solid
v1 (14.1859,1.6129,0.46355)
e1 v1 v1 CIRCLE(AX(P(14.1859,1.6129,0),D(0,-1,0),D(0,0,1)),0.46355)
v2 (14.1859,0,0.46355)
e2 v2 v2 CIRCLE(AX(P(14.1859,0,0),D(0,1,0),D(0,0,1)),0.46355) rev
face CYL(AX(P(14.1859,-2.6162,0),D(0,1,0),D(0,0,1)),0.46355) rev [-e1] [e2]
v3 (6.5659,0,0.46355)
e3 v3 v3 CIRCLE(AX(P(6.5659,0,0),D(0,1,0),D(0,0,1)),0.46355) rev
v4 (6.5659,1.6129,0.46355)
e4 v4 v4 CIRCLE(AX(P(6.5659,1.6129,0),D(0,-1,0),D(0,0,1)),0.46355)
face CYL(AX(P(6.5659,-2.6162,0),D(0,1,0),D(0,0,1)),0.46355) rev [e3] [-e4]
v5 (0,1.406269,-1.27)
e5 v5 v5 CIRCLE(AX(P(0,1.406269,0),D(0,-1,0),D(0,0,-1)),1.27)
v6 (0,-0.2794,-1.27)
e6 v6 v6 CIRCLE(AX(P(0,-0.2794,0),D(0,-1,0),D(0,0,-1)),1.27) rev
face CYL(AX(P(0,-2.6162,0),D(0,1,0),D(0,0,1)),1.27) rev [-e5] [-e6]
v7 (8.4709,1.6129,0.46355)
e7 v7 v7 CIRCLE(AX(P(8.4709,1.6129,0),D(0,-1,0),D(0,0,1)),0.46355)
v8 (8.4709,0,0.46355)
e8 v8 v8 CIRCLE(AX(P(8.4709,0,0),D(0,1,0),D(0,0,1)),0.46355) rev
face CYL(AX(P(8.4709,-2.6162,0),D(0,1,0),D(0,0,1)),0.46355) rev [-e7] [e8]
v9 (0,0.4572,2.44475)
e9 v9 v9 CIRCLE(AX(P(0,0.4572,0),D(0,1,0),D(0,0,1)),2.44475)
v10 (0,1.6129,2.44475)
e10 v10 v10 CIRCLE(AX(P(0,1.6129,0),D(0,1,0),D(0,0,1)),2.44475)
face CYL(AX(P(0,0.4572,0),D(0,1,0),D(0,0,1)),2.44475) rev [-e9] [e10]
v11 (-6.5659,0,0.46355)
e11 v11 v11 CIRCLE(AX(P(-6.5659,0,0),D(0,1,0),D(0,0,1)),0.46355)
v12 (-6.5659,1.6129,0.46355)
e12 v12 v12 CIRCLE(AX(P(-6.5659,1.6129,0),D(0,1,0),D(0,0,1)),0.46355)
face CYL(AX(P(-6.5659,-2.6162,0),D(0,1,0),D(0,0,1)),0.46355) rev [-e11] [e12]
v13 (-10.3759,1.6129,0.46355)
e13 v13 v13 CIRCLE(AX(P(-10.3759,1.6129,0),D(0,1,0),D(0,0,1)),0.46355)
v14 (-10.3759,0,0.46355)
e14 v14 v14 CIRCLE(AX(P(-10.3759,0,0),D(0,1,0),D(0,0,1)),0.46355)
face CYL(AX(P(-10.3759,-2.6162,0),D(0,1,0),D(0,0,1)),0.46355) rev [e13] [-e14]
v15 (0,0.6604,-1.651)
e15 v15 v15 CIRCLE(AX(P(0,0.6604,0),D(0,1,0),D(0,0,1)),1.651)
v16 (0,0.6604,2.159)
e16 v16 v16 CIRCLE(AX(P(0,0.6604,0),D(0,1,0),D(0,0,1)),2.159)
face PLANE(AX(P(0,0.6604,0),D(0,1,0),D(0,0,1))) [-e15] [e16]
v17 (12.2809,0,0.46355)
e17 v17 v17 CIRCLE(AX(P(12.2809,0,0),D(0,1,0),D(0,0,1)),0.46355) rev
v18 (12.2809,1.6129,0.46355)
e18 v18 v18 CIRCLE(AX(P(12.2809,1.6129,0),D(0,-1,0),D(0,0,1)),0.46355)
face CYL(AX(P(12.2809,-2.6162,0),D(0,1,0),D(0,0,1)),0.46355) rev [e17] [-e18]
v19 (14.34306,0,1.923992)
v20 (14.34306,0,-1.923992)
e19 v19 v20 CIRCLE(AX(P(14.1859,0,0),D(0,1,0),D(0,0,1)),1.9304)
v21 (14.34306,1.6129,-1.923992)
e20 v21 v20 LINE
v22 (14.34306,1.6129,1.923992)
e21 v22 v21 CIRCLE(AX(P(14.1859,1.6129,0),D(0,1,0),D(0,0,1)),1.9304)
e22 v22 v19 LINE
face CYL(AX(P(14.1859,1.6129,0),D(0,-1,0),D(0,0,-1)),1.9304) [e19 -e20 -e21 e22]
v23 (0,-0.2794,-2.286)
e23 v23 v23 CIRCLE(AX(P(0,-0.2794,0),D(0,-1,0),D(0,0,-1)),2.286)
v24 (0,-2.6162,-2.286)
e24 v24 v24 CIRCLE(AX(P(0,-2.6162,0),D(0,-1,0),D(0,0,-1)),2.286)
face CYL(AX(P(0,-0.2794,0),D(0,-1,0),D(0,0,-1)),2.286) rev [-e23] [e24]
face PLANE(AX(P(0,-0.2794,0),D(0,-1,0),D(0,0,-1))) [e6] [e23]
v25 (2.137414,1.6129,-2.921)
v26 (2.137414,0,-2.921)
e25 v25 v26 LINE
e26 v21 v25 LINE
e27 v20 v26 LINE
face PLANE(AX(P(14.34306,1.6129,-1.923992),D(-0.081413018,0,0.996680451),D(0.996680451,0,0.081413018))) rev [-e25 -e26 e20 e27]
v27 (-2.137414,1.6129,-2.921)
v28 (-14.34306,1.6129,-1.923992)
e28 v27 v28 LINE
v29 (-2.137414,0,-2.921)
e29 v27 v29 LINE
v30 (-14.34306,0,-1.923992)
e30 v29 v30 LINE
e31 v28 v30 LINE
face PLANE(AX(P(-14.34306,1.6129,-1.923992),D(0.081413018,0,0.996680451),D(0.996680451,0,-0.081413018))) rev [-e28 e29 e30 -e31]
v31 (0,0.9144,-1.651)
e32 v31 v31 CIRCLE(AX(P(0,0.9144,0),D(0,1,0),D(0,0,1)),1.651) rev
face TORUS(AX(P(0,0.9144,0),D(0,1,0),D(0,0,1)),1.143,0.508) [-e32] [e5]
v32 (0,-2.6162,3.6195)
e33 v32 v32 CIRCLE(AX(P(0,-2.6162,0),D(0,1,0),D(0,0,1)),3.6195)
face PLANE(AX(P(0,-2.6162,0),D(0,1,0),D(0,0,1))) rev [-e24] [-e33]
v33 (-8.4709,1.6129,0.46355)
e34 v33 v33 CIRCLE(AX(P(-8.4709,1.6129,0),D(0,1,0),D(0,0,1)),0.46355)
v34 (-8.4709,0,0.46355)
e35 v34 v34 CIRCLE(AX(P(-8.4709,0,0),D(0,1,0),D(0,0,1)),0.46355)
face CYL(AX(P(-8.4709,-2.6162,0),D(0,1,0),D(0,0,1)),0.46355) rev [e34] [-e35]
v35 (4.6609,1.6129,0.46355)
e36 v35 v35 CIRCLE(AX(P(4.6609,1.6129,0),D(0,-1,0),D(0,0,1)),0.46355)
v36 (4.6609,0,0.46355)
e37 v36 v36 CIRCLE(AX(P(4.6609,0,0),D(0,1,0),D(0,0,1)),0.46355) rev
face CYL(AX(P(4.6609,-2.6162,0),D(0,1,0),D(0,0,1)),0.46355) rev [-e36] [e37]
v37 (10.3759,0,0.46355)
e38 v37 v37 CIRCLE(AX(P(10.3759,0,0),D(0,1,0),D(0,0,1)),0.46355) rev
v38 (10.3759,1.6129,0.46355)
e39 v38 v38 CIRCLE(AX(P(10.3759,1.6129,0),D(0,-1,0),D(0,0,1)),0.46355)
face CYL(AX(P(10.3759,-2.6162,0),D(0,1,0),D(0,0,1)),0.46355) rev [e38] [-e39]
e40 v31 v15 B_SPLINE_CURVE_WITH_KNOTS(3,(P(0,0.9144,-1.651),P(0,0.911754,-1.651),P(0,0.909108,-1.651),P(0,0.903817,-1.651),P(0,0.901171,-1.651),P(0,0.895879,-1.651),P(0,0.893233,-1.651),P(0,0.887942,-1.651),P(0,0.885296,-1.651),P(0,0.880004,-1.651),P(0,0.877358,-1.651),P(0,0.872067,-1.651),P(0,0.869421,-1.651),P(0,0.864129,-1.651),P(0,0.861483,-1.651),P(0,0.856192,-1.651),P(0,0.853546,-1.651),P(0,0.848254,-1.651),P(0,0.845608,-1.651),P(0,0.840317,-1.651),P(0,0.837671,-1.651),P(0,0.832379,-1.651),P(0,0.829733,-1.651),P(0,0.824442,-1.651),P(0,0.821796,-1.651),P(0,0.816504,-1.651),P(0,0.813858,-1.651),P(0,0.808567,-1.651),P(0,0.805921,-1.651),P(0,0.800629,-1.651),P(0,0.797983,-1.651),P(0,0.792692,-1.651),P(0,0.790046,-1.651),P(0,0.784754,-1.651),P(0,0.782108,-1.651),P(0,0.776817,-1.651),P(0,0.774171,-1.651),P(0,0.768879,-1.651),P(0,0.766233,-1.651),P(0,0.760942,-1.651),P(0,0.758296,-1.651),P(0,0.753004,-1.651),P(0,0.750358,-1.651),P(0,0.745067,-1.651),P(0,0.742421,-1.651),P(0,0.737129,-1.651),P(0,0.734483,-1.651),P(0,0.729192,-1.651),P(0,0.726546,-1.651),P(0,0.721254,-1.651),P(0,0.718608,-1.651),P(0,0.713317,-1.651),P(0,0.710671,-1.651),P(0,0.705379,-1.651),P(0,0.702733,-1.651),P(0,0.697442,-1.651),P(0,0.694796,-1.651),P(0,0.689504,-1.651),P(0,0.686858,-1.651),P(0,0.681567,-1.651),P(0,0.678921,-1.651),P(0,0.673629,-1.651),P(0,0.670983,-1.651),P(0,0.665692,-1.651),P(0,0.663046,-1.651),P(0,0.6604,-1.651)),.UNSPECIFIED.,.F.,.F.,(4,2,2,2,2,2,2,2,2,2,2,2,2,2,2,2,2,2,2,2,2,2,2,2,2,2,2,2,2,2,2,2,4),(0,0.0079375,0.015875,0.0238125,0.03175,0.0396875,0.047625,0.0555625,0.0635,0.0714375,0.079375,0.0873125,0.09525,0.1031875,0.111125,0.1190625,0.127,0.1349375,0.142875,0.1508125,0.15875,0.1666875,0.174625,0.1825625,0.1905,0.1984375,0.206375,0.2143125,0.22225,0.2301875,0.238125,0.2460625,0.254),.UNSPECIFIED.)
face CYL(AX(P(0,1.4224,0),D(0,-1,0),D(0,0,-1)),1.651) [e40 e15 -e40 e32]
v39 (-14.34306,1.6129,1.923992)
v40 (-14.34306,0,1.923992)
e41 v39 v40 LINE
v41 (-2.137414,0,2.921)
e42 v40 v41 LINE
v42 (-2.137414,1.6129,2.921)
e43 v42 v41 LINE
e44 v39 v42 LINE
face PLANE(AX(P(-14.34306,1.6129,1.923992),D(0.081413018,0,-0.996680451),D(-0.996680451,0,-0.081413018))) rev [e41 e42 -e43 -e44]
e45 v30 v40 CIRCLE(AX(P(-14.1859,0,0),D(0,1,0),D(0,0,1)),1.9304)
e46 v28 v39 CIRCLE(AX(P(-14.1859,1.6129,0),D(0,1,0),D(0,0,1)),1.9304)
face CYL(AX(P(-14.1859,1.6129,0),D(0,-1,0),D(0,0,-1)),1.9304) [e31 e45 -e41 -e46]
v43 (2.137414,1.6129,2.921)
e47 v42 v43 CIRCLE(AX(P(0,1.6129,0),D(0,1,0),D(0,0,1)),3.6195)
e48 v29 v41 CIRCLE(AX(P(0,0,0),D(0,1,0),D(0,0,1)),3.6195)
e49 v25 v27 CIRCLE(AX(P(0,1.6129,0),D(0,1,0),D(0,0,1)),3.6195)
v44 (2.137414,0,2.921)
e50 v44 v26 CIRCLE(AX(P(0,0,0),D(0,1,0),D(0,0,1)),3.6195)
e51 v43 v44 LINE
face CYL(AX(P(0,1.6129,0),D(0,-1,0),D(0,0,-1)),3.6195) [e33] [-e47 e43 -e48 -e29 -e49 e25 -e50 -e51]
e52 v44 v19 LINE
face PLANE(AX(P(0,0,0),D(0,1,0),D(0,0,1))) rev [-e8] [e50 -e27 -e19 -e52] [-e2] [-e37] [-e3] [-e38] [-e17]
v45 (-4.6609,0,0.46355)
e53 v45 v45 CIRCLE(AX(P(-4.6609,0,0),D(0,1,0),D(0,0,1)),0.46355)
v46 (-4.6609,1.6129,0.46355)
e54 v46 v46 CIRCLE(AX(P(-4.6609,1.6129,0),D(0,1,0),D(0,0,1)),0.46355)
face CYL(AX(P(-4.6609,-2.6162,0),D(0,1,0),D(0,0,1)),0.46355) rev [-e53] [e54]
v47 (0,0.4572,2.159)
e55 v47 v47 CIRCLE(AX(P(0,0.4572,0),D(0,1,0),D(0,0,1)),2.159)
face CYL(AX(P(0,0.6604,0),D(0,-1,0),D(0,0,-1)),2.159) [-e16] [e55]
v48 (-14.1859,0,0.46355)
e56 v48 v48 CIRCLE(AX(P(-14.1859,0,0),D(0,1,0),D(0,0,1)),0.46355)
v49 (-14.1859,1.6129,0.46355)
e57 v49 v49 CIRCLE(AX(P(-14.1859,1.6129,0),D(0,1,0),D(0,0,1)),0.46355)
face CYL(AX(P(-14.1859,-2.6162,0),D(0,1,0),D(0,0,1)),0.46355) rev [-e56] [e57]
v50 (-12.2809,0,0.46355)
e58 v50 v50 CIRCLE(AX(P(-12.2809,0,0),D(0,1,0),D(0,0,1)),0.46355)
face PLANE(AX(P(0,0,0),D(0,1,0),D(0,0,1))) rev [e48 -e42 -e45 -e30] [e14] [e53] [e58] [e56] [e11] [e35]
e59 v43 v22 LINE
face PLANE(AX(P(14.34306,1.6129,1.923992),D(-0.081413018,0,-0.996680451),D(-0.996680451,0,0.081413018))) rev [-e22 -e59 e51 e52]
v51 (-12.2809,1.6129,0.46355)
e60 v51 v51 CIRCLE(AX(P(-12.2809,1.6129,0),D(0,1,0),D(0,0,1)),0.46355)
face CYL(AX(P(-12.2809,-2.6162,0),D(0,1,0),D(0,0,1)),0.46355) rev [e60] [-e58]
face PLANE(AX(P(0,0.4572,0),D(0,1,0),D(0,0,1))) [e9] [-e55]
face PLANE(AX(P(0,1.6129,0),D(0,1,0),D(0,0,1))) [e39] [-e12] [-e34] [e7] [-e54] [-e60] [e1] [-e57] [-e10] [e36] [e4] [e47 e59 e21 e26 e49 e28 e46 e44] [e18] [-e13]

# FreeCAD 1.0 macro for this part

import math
import FreeCAD as App
import Part
import Sketcher

V = App.Vector
Q = App.Units.Quantity


def edges_at(feature, points):
    """Names of the edges that pass closest to the given points."""
    edges = feature.Shape.Edges
    near = lambda p: min(range(len(edges)), key=lambda i: edges[i].distToShape(Part.Vertex(*p))[0])
    return sorted({f"Edge{near(p) + 1}" for p in points})


def add_polygon(sketch, points):
    """Adds a closed chain of lines whose ends are joined by coincident constraints."""
    first, n = sketch.GeometryCount, len(points)
    for a, b in zip(points, points[1:] + points[:1]):
        sketch.addGeometry(Part.LineSegment(App.Vector(*a, 0), App.Vector(*b, 0)), False)
    for i in range(n):
        sketch.addConstraint(Sketcher.Constraint("Coincident", first + i, 2, first + (i + 1) % n, 1))

doc = App.newDocument("Part")
body = doc.addObject("PartDesign::Body", "Body")

# Sketch on XZ plane
sketch1 = doc.addObject("Sketcher::SketchObject", "Sketch")
body.addObject(sketch1)
sketch1.AttachmentSupport = (doc.XZ_Plane, [""])
sketch1.MapMode = "FlatFace"
sketch1.addGeometry(Part.LineSegment(V(-2.137414, -2.921, 0), V(-14.34306, -1.923992, 0)), False)
sketch1.addGeometry(Part.ArcOfCircle(Part.Circle(V(-14.1859, 0, 0), V(0, 0, 1), 1.9304), math.radians(94.669791), math.radians(265.330209)), False)
sketch1.addGeometry(Part.LineSegment(V(-14.34306, 1.923992, 0), V(-2.137414, 2.921, 0)), False)
sketch1.addGeometry(Part.ArcOfCircle(Part.Circle(V(0, 0, 0), V(0, 0, 1), 3.6195), math.radians(53.805553), math.radians(126.194447)), False)
sketch1.addGeometry(Part.LineSegment(V(2.137414, 2.921, 0), V(14.34306, 1.923992, 0)), False)
sketch1.addGeometry(Part.ArcOfCircle(Part.Circle(V(14.1859, 0, 0), V(0, 0, 1), 1.9304), math.radians(-85.330209), math.radians(85.330209)), False)
sketch1.addGeometry(Part.LineSegment(V(14.34306, -1.923992, 0), V(2.137414, -2.921, 0)), False)
sketch1.addGeometry(Part.ArcOfCircle(Part.Circle(V(0, 0, 0), V(0, 0, 1), 3.6195), math.radians(-126.194447), math.radians(-53.805553)), False)
sketch1.addConstraint(Sketcher.Constraint("Tangent", 0, 2, 1, 2))
sketch1.addConstraint(Sketcher.Constraint("Tangent", 1, 1, 2, 1))
sketch1.addConstraint(Sketcher.Constraint("Coincident", 2, 2, 3, 2))
sketch1.addConstraint(Sketcher.Constraint("Coincident", 3, 1, 4, 1))
sketch1.addConstraint(Sketcher.Constraint("Tangent", 4, 2, 5, 2))
sketch1.addConstraint(Sketcher.Constraint("Tangent", 5, 1, 6, 1))
sketch1.addConstraint(Sketcher.Constraint("Coincident", 6, 2, 7, 2))
sketch1.addConstraint(Sketcher.Constraint("Coincident", 7, 1, 0, 1))
sketch1.addConstraint(Sketcher.Constraint("Coincident", 3, 3, -1, 1))
sketch1.addConstraint(Sketcher.Constraint("Coincident", 7, 3, -1, 1))
sketch1.addConstraint(Sketcher.Constraint("Equal", 1, 5))
sketch1.addConstraint(Sketcher.Constraint("Equal", 3, 7))
sketch1.addConstraint(Sketcher.Constraint("Symmetric", 1, 3, 5, 3, -1, 1))
sketch1.addConstraint(Sketcher.Constraint("Symmetric", 1, 1, 4, 2, -2))
sketch1.addConstraint(Sketcher.Constraint("Parallel", 0, 4))
sketch1.addConstraint(Sketcher.Constraint("Parallel", 2, 6))
sketch1.addConstraint(Sketcher.Constraint("Radius", 1, Q("0.076 in")))
sketch1.addConstraint(Sketcher.Constraint("Radius", 3, Q("0.1425 in")))
sketch1.addConstraint(Sketcher.Constraint("DistanceY", 6, 2, 3, 1, Q("0.23 in")))
sketch1.addConstraint(Sketcher.Constraint("DistanceX", 1, 3, 5, 3, Q("1.117 in")))
pad1 = doc.addObject("PartDesign::Pad", "Pad")
body.addObject(pad1)
pad1.Profile = sketch1
pad1.Length = Q("0.0635 in")
pad1.Reversed = True

# Sketch on XZ plane
sketch2 = doc.addObject("Sketcher::SketchObject", "Sketch001")
body.addObject(sketch2)
sketch2.AttachmentSupport = (doc.XZ_Plane, [""])
sketch2.MapMode = "FlatFace"
sketch2.AttachmentOffset = App.Placement(V(0, 0, 0.103 * 25.4), App.Rotation())
sketch2.addGeometry(Part.Circle(V(0, 0, 0), V(0, 0, 1), 3.6195), False)
sketch2.addConstraint(Sketcher.Constraint("Coincident", 0, 3, -1, 1))
sketch2.addConstraint(Sketcher.Constraint("Diameter", 0, Q("0.285 in")))
pad2 = doc.addObject("PartDesign::Pad", "Pad001")
body.addObject(pad2)
pad2.Profile = sketch2
pad2.Length = Q("0.1665 in")
pad2.Reversed = True

# Sketch on XZ plane
sketch3 = doc.addObject("Sketcher::SketchObject", "Sketch002")
body.addObject(sketch3)
sketch3.AttachmentSupport = (doc.XZ_Plane, [""])
sketch3.MapMode = "FlatFace"
sketch3.AttachmentOffset = App.Placement(V(0, 0, -0.0635 * 25.4), App.Rotation())
sketch3.addGeometry(Part.Circle(V(-14.1859, 0, 0), V(0, 0, 1), 0.46355), False)
sketch3.addGeometry(Part.Circle(V(0, 0, 0), V(0, 0, 1), 1.27), False)
sketch3.addGeometry(Part.Circle(V(-4.6609, 0, 0), V(0, 0, 1), 0.46355), False)
sketch3.addGeometry(Part.Circle(V(-6.5659, 0, 0), V(0, 0, 1), 0.46355), False)
sketch3.addGeometry(Part.Circle(V(-8.4709, 0, 0), V(0, 0, 1), 0.46355), False)
sketch3.addGeometry(Part.Circle(V(-10.3759, 0, 0), V(0, 0, 1), 0.46355), False)
sketch3.addGeometry(Part.Circle(V(-12.2809, 0, 0), V(0, 0, 1), 0.46355), False)
sketch3.addConstraint(Sketcher.Constraint("Coincident", 1, 3, -1, 1))
sketch3.addConstraint(Sketcher.Constraint("Equal", 0, 2))
sketch3.addConstraint(Sketcher.Constraint("Equal", 2, 3))
sketch3.addConstraint(Sketcher.Constraint("Equal", 3, 4))
sketch3.addConstraint(Sketcher.Constraint("Equal", 4, 5))
sketch3.addConstraint(Sketcher.Constraint("Equal", 5, 6))
sketch3.addConstraint(Sketcher.Constraint("PointOnObject", 0, 3, -1))
sketch3.addConstraint(Sketcher.Constraint("PointOnObject", 2, 3, -1))
sketch3.addConstraint(Sketcher.Constraint("PointOnObject", 3, 3, -1))
sketch3.addConstraint(Sketcher.Constraint("PointOnObject", 4, 3, -1))
sketch3.addConstraint(Sketcher.Constraint("PointOnObject", 5, 3, -1))
sketch3.addConstraint(Sketcher.Constraint("PointOnObject", 6, 3, -1))
sketch3.addConstraint(Sketcher.Constraint("Diameter", 1, Q("0.1 in")))
sketch3.addConstraint(Sketcher.Constraint("Diameter", 0, Q("0.0365 in")))
sketch3.addConstraint(Sketcher.Constraint("DistanceX", 0, 3, 3, 3, Q("0.3 in")))
sketch3.addConstraint(Sketcher.Constraint("DistanceX", 6, 3, 2, 3, Q("0.3 in")))
sketch3.addConstraint(Sketcher.Constraint("DistanceX", 4, 3, 2, 3, Q("0.15 in")))
sketch3.addConstraint(Sketcher.Constraint("DistanceX", 5, 3, 3, 3, Q("0.15 in")))
sketch3.addConstraint(Sketcher.Constraint("DistanceX", 0, 3, 2, 3, Q("0.375 in")))
sketch3.addConstraint(Sketcher.Constraint("DistanceX", 0, 3, -1, 1, Q("0.5585 in")))
pocket1 = doc.addObject("PartDesign::Pocket", "Pocket")
body.addObject(pocket1)
pocket1.Profile = sketch3
pocket1.Type = "ThroughAll"
pocket1.Reversed = True

# Sketch on XZ plane
sketch4 = doc.addObject("Sketcher::SketchObject", "Sketch003")
body.addObject(sketch4)
sketch4.AttachmentSupport = (doc.XZ_Plane, [""])
sketch4.MapMode = "FlatFace"
sketch4.AttachmentOffset = App.Placement(V(0, 0, -0.0635 * 25.4), App.Rotation())
sketch4.addGeometry(Part.Circle(V(0, 0, 0), V(0, 0, 1), 2.44475), False)
sketch4.addConstraint(Sketcher.Constraint("Coincident", 0, 3, -1, 1))
sketch4.addConstraint(Sketcher.Constraint("Diameter", 0, Q("0.1925 in")))
pocket2 = doc.addObject("PartDesign::Pocket", "Pocket001")
body.addObject(pocket2)
pocket2.Profile = sketch4
pocket2.Length = Q("0.0455 in")
pocket2.Reversed = True

# Sketch on XZ plane
sketch5 = doc.addObject("Sketcher::SketchObject", "Sketch004")
body.addObject(sketch5)
sketch5.AttachmentSupport = (doc.XZ_Plane, [""])
sketch5.MapMode = "FlatFace"
sketch5.AttachmentOffset = App.Placement(V(0, 0, 0.103 * 25.4), App.Rotation())
sketch5.addGeometry(Part.Circle(V(0, 0, 0), V(0, 0, 1), 2.286), False)
sketch5.addConstraint(Sketcher.Constraint("Coincident", 0, 3, -1, 1))
sketch5.addConstraint(Sketcher.Constraint("Diameter", 0, Q("0.18 in")))
pocket3 = doc.addObject("PartDesign::Pocket", "Pocket002")
body.addObject(pocket3)
pocket3.Profile = sketch5
pocket3.Length = Q("0.092 in")
body2 = doc.addObject("PartDesign::Body", "Body001")

# Sketch on XZ plane
sketch6 = doc.addObject("Sketcher::SketchObject", "Sketch005")
body2.addObject(sketch6)
sketch6.AttachmentSupport = (doc.getObject("XZ_Plane001"), [""])
sketch6.MapMode = "FlatFace"
sketch6.AttachmentOffset = App.Placement(V(0, 0, -0.018 * 25.4), App.Rotation())
sketch6.addGeometry(Part.Circle(V(0, 0, 0), V(0, 0, 1), 2.159), False)
sketch6.addConstraint(Sketcher.Constraint("Coincident", 0, 3, -1, 1))
sketch6.addConstraint(Sketcher.Constraint("Diameter", 0, Q("0.17 in")))
pad3 = doc.addObject("PartDesign::Pad", "Pad002")
body2.addObject(pad3)
pad3.Profile = sketch6
pad3.Length = Q("0.008 in")
pad3.Reversed = True
doc.recompute()

boolean = doc.addObject("PartDesign::Boolean", "Boolean")
body.addObject(boolean)
boolean.Type = "Fuse"
boolean.addObjects([body2])

# Sketch on XZ plane
sketch7 = doc.addObject("Sketcher::SketchObject", "Sketch006")
body.addObject(sketch7)
sketch7.AttachmentSupport = (doc.XZ_Plane, [""])
sketch7.MapMode = "FlatFace"
sketch7.AttachmentOffset = App.Placement(V(0, 0, -0.026 * 25.4), App.Rotation())
sketch7.addGeometry(Part.Circle(V(0, 0, 0), V(0, 0, 1), 1.651), False)
sketch7.addConstraint(Sketcher.Constraint("Coincident", 0, 3, -1, 1))
sketch7.addConstraint(Sketcher.Constraint("Diameter", 0, Q("0.13 in")))
pad4 = doc.addObject("PartDesign::Pad", "Pad003")
body.addObject(pad4)
pad4.Profile = sketch7
pad4.Length = Q("0.03 in")
pad4.Reversed = True

# Sketch on XZ plane
sketch8 = doc.addObject("Sketcher::SketchObject", "Sketch007")
body.addObject(sketch8)
sketch8.AttachmentSupport = (doc.XZ_Plane, [""])
sketch8.MapMode = "FlatFace"
sketch8.AttachmentOffset = App.Placement(V(0, 0, -0.056 * 25.4), App.Rotation())
add_polygon(sketch8, [(-0.254, 1.016), (0.254, 1.016), (0.254, 0.254), (1.016, 0.254), (1.016, -0.254), (0.254, -0.254), (0.254, -1.016), (-0.254, -1.016), (-0.254, -0.254), (-1.016, -0.254), (-1.016, 0.254), (-0.254, 0.254)])  # lines 0-11
sketch8.addConstraint(Sketcher.Constraint("Horizontal", 0))
sketch8.addConstraint(Sketcher.Constraint("Vertical", 1))
sketch8.addConstraint(Sketcher.Constraint("Horizontal", 2))
sketch8.addConstraint(Sketcher.Constraint("Vertical", 3))
sketch8.addConstraint(Sketcher.Constraint("Horizontal", 4))
sketch8.addConstraint(Sketcher.Constraint("Vertical", 5))
sketch8.addConstraint(Sketcher.Constraint("Horizontal", 6))
sketch8.addConstraint(Sketcher.Constraint("Vertical", 7))
sketch8.addConstraint(Sketcher.Constraint("Horizontal", 8))
sketch8.addConstraint(Sketcher.Constraint("Vertical", 9))
sketch8.addConstraint(Sketcher.Constraint("Horizontal", 10))
sketch8.addConstraint(Sketcher.Constraint("Vertical", 11))
sketch8.addConstraint(Sketcher.Constraint("Symmetric", 0, 2, 6, 2, -1, 1))
sketch8.addConstraint(Sketcher.Constraint("Symmetric", 2, 2, 8, 2, -1, 1))
sketch8.addConstraint(Sketcher.Constraint("Symmetric", 4, 2, 10, 2, -1, 1))
sketch8.addConstraint(Sketcher.Constraint("Symmetric", 4, 2, 7, 2, -2))
sketch8.addConstraint(Sketcher.Constraint("Equal", 10, 1))
sketch8.addConstraint(Sketcher.Constraint("Equal", 6, 3))
sketch8.addConstraint(Sketcher.Constraint("DistanceX", 0, 1, 0, 2, Q("0.02 in")))
sketch8.addConstraint(Sketcher.Constraint("DistanceX", 2, 1, 2, 2, Q("0.03 in")))
pocket4 = doc.addObject("PartDesign::Pocket", "Pocket003")
body.addObject(pocket4)
pocket4.Profile = sketch8
pocket4.Length = Q("0.02 in")
pocket4.Reversed = True
doc.recompute()

fillet = doc.addObject("PartDesign::Fillet", "Fillet")
body.addObject(fillet)
fillet.Base = (pocket4, edges_at(pocket4, [(0, 1.422, 1.651)]))
fillet.Radius = Q("0.02 in")
doc.recompute()

mirrored = doc.addObject("PartDesign::Mirrored", "Mirrored")
body.addObject(mirrored)
mirrored.Originals = [pocket1]
mirrored.MirrorPlane = (doc.YZ_Plane, [""])
body.Tip = mirrored

doc.recompute()
